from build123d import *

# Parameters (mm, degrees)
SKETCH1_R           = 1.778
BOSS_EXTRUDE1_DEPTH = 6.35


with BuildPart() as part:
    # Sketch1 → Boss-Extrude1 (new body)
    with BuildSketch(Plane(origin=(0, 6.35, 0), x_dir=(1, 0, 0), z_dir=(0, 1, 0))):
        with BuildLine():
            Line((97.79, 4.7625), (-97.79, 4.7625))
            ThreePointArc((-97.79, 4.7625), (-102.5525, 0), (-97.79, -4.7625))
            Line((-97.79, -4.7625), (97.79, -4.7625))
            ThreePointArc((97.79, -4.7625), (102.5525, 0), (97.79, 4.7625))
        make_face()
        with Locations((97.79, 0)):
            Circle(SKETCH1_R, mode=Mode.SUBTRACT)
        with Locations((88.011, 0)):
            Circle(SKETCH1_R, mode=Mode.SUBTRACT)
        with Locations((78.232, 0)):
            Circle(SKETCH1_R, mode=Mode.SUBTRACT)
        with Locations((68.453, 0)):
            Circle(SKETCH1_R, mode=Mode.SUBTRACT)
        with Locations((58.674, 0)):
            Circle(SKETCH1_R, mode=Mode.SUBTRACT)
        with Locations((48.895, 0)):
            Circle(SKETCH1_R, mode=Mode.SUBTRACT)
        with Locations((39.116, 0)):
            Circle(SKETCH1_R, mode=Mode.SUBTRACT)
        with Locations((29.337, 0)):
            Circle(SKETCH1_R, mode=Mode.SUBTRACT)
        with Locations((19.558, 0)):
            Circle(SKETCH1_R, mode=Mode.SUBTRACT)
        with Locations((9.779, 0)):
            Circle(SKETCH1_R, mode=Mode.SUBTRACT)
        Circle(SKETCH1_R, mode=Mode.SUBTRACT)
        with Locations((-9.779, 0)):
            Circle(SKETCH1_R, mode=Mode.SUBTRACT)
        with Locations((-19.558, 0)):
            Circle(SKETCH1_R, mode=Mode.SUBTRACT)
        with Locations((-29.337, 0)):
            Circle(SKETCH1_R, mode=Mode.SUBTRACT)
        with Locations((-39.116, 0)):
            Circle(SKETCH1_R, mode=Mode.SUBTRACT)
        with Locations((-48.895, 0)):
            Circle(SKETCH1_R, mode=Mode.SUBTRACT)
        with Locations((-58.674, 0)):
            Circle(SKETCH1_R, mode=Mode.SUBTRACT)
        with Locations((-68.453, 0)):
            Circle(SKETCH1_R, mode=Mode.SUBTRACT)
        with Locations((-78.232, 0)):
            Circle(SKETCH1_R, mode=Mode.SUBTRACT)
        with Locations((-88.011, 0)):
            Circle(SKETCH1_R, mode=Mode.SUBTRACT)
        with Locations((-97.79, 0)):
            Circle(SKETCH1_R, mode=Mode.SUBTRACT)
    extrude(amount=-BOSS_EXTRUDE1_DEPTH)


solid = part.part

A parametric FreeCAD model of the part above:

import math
import FreeCAD as App
import Part
import Sketcher
Q = App.Units.Quantity

doc = App.newDocument("Part")
params = doc.addObject("Spreadsheet::Sheet", "Params")
for row, (alias, value) in enumerate([
    ("sketch1_diameter", "0.14 in"),
    ("sketch1_width", "7.7 in"),
    ("sketch1_radius", "0.1875 in"),
    ("pad1_length", "0.25 in"),
], start=1):
    params.set(f"A{row}", alias)
    params.set(f"B{row}", "=" + value)
    params.setAlias(f"B{row}", alias)

body = doc.addObject("PartDesign::Body", "Body")

# Sketch on XZ plane
sketch1 = body.newObject("Sketcher::SketchObject", "Sketch")
sketch1.AttachmentSupport = (doc.getObject("XZ_Plane"), [""])
sketch1.MapMode = "FlatFace"
sketch1.AttachmentOffset = App.Placement(App.Vector(0, 0, -0.25 * 25.4), App.Rotation())
sketch1.addGeometry(Part.LineSegment(App.Vector(97.8, -4.8, 0), App.Vector(-97.8, -4.8, 0)), False)
sketch1.addGeometry(Part.ArcOfCircle(Part.Circle(App.Vector(-97.8, 0, 0), App.Vector(0, 0, 1), 4.8), math.radians(90), math.radians(270)), False)
sketch1.addGeometry(Part.LineSegment(App.Vector(-97.8, 4.8, 0), App.Vector(97.8, 4.8, 0)), False)
sketch1.addGeometry(Part.ArcOfCircle(Part.Circle(App.Vector(97.8, 0, 0), App.Vector(0, 0, 1), 4.8), math.radians(-90), math.radians(90)), False)
sketch1.addGeometry(Part.Circle(App.Vector(-97.8, 0, 0), App.Vector(0, 0, 1), 1.8), False)
sketch1.addGeometry(Part.Circle(App.Vector(-88, 0, 0), App.Vector(0, 0, 1), 1.8), False)
sketch1.addGeometry(Part.Circle(App.Vector(-78.2, 0, 0), App.Vector(0, 0, 1), 1.8), False)
sketch1.addGeometry(Part.Circle(App.Vector(-68.5, 0, 0), App.Vector(0, 0, 1), 1.8), False)
sketch1.addGeometry(Part.Circle(App.Vector(-58.7, 0, 0), App.Vector(0, 0, 1), 1.8), False)
sketch1.addGeometry(Part.Circle(App.Vector(-48.9, 0, 0), App.Vector(0, 0, 1), 1.8), False)
sketch1.addGeometry(Part.Circle(App.Vector(-39.1, 0, 0), App.Vector(0, 0, 1), 1.8), False)
sketch1.addGeometry(Part.Circle(App.Vector(-29.3, 0, 0), App.Vector(0, 0, 1), 1.8), False)
sketch1.addGeometry(Part.Circle(App.Vector(-19.6, 0, 0), App.Vector(0, 0, 1), 1.8), False)
sketch1.addGeometry(Part.Circle(App.Vector(-9.8, 0, 0), App.Vector(0, 0, 1), 1.8), False)
sketch1.addGeometry(Part.Circle(App.Vector(0, 0, 0), App.Vector(0, 0, 1), 1.8), False)
sketch1.addGeometry(Part.Circle(App.Vector(9.8, 0, 0), App.Vector(0, 0, 1), 1.8), False)
sketch1.addGeometry(Part.Circle(App.Vector(19.6, 0, 0), App.Vector(0, 0, 1), 1.8), False)
sketch1.addGeometry(Part.Circle(App.Vector(29.3, 0, 0), App.Vector(0, 0, 1), 1.8), False)
sketch1.addGeometry(Part.Circle(App.Vector(39.1, 0, 0), App.Vector(0, 0, 1), 1.8), False)
sketch1.addGeometry(Part.Circle(App.Vector(48.9, 0, 0), App.Vector(0, 0, 1), 1.8), False)
sketch1.addGeometry(Part.Circle(App.Vector(58.7, 0, 0), App.Vector(0, 0, 1), 1.8), False)
sketch1.addGeometry(Part.Circle(App.Vector(68.5, 0, 0), App.Vector(0, 0, 1), 1.8), False)
sketch1.addGeometry(Part.Circle(App.Vector(78.2, 0, 0), App.Vector(0, 0, 1), 1.8), False)
sketch1.addGeometry(Part.Circle(App.Vector(88, 0, 0), App.Vector(0, 0, 1), 1.8), False)
sketch1.addGeometry(Part.Circle(App.Vector(97.8, 0, 0), App.Vector(0, 0, 1), 1.8), False)
sketch1.addConstraint(Sketcher.Constraint("Tangent", 0, 2, 1, 2))
sketch1.addConstraint(Sketcher.Constraint("Tangent", 1, 1, 2, 1))
sketch1.addConstraint(Sketcher.Constraint("Tangent", 2, 2, 3, 2))
sketch1.addConstraint(Sketcher.Constraint("Tangent", 3, 1, 0, 1))
sketch1.addConstraint(Sketcher.Constraint("Horizontal", 0))
sketch1.addConstraint(Sketcher.Constraint("Horizontal", 2))
sketch1.addConstraint(Sketcher.Constraint("Coincident", 14, 3, -1, 1))
sketch1.addConstraint(Sketcher.Constraint("Coincident", 4, 3, 1, 3))
sketch1.addConstraint(Sketcher.Constraint("Coincident", 24, 3, 3, 3))
sketch1.addConstraint(Sketcher.Constraint("Equal", 4, 5))
sketch1.addConstraint(Sketcher.Constraint("Equal", 5, 6))
sketch1.addConstraint(Sketcher.Constraint("Equal", 6, 7))
sketch1.addConstraint(Sketcher.Constraint("Equal", 7, 8))
sketch1.addConstraint(Sketcher.Constraint("Equal", 8, 9))
sketch1.addConstraint(Sketcher.Constraint("Equal", 9, 10))
sketch1.addConstraint(Sketcher.Constraint("Equal", 10, 11))
sketch1.addConstraint(Sketcher.Constraint("Equal", 11, 12))
sketch1.addConstraint(Sketcher.Constraint("Equal", 12, 13))
sketch1.addConstraint(Sketcher.Constraint("Equal", 13, 14))
sketch1.addConstraint(Sketcher.Constraint("Equal", 14, 15))
sketch1.addConstraint(Sketcher.Constraint("Equal", 15, 16))
sketch1.addConstraint(Sketcher.Constraint("Equal", 16, 17))
sketch1.addConstraint(Sketcher.Constraint("Equal", 17, 18))
sketch1.addConstraint(Sketcher.Constraint("Equal", 18, 19))
sketch1.addConstraint(Sketcher.Constraint("Equal", 19, 20))
sketch1.addConstraint(Sketcher.Constraint("Equal", 20, 21))
sketch1.addConstraint(Sketcher.Constraint("Equal", 21, 22))
sketch1.addConstraint(Sketcher.Constraint("Equal", 22, 23))
sketch1.addConstraint(Sketcher.Constraint("Equal", 23, 24))
sketch1.addConstraint(Sketcher.Constraint("Symmetric", 1, 3, 3, 3, -1, 1))
sketch1.addConstraint(Sketcher.Constraint("Symmetric", 13, 3, 15, 3, -1, 1))
sketch1.addConstraint(Sketcher.Constraint("Symmetric", 12, 3, 16, 3, -1, 1))
sketch1.addConstraint(Sketcher.Constraint("Symmetric", 11, 3, 17, 3, -1, 1))
sketch1.addConstraint(Sketcher.Constraint("Symmetric", 10, 3, 18, 3, -1, 1))
sketch1.addConstraint(Sketcher.Constraint("Symmetric", 9, 3, 19, 3, -1, 1))
sketch1.addConstraint(Sketcher.Constraint("Symmetric", 8, 3, 20, 3, -1, 1))
sketch1.addConstraint(Sketcher.Constraint("Symmetric", 7, 3, 21, 3, -1, 1))
sketch1.addConstraint(Sketcher.Constraint("Symmetric", 6, 3, 22, 3, -1, 1))
sketch1.addConstraint(Sketcher.Constraint("Symmetric", 5, 3, 23, 3, -1, 1))
sketch1.addConstraint(Sketcher.Constraint("PointOnObject", 5, 3, -1))
sketch1.addConstraint(Sketcher.Constraint("PointOnObject", 6, 3, -1))
sketch1.addConstraint(Sketcher.Constraint("PointOnObject", 7, 3, -1))
sketch1.addConstraint(Sketcher.Constraint("PointOnObject", 8, 3, -1))
sketch1.addConstraint(Sketcher.Constraint("PointOnObject", 9, 3, -1))
sketch1.addConstraint(Sketcher.Constraint("PointOnObject", 10, 3, -1))
sketch1.addConstraint(Sketcher.Constraint("PointOnObject", 11, 3, -1))
sketch1.addConstraint(Sketcher.Constraint("PointOnObject", 12, 3, -1))
sketch1.addConstraint(Sketcher.Constraint("PointOnObject", 13, 3, -1))
sketch1.addConstraint(Sketcher.Constraint("Diameter", 4, Q("0.14 in")))
sketch1.addConstraint(Sketcher.Constraint("DistanceX", 0, 2, 0, 1, Q("7.7 in")))
sketch1.addConstraint(Sketcher.Constraint("Radius", 1, Q("0.1875 in")))
sketch1.addConstraint(Sketcher.Constraint("DistanceX", 6, 3, -1, 1, Q("3.08 in")))
sketch1.addConstraint(Sketcher.Constraint("DistanceX", 8, 3, -1, 1, Q("2.31 in")))
sketch1.addConstraint(Sketcher.Constraint("DistanceX", 10, 3, -1, 1, Q("1.54 in")))
sketch1.addConstraint(Sketcher.Constraint("DistanceX", 12, 3, -1, 1, Q("0.77 in")))
sketch1.addConstraint(Sketcher.Constraint("DistanceX", 5, 3, 7, 3, Q("0.77 in")))
sketch1.addConstraint(Sketcher.Constraint("DistanceX", 7, 3, 9, 3, Q("0.77 in")))
sketch1.addConstraint(Sketcher.Constraint("DistanceX", 9, 3, 11, 3, Q("0.77 in")))
sketch1.addConstraint(Sketcher.Constraint("DistanceX", 11, 3, 13, 3, Q("0.77 in")))
sketch1.addConstraint(Sketcher.Constraint("DistanceX", 13, 3, 15, 3, Q("0.77 in")))
sketch1.setExpression("Constraints[48]", "Params.sketch1_diameter")
sketch1.setExpression("Constraints[49]", "Params.sketch1_width")
sketch1.setExpression("Constraints[50]", "Params.sketch1_radius")
pad1 = body.newObject("PartDesign::Pad", "Pad")
pad1.Profile = sketch1
pad1.setExpression("Length", "Params.pad1_length")

doc.recompute()
